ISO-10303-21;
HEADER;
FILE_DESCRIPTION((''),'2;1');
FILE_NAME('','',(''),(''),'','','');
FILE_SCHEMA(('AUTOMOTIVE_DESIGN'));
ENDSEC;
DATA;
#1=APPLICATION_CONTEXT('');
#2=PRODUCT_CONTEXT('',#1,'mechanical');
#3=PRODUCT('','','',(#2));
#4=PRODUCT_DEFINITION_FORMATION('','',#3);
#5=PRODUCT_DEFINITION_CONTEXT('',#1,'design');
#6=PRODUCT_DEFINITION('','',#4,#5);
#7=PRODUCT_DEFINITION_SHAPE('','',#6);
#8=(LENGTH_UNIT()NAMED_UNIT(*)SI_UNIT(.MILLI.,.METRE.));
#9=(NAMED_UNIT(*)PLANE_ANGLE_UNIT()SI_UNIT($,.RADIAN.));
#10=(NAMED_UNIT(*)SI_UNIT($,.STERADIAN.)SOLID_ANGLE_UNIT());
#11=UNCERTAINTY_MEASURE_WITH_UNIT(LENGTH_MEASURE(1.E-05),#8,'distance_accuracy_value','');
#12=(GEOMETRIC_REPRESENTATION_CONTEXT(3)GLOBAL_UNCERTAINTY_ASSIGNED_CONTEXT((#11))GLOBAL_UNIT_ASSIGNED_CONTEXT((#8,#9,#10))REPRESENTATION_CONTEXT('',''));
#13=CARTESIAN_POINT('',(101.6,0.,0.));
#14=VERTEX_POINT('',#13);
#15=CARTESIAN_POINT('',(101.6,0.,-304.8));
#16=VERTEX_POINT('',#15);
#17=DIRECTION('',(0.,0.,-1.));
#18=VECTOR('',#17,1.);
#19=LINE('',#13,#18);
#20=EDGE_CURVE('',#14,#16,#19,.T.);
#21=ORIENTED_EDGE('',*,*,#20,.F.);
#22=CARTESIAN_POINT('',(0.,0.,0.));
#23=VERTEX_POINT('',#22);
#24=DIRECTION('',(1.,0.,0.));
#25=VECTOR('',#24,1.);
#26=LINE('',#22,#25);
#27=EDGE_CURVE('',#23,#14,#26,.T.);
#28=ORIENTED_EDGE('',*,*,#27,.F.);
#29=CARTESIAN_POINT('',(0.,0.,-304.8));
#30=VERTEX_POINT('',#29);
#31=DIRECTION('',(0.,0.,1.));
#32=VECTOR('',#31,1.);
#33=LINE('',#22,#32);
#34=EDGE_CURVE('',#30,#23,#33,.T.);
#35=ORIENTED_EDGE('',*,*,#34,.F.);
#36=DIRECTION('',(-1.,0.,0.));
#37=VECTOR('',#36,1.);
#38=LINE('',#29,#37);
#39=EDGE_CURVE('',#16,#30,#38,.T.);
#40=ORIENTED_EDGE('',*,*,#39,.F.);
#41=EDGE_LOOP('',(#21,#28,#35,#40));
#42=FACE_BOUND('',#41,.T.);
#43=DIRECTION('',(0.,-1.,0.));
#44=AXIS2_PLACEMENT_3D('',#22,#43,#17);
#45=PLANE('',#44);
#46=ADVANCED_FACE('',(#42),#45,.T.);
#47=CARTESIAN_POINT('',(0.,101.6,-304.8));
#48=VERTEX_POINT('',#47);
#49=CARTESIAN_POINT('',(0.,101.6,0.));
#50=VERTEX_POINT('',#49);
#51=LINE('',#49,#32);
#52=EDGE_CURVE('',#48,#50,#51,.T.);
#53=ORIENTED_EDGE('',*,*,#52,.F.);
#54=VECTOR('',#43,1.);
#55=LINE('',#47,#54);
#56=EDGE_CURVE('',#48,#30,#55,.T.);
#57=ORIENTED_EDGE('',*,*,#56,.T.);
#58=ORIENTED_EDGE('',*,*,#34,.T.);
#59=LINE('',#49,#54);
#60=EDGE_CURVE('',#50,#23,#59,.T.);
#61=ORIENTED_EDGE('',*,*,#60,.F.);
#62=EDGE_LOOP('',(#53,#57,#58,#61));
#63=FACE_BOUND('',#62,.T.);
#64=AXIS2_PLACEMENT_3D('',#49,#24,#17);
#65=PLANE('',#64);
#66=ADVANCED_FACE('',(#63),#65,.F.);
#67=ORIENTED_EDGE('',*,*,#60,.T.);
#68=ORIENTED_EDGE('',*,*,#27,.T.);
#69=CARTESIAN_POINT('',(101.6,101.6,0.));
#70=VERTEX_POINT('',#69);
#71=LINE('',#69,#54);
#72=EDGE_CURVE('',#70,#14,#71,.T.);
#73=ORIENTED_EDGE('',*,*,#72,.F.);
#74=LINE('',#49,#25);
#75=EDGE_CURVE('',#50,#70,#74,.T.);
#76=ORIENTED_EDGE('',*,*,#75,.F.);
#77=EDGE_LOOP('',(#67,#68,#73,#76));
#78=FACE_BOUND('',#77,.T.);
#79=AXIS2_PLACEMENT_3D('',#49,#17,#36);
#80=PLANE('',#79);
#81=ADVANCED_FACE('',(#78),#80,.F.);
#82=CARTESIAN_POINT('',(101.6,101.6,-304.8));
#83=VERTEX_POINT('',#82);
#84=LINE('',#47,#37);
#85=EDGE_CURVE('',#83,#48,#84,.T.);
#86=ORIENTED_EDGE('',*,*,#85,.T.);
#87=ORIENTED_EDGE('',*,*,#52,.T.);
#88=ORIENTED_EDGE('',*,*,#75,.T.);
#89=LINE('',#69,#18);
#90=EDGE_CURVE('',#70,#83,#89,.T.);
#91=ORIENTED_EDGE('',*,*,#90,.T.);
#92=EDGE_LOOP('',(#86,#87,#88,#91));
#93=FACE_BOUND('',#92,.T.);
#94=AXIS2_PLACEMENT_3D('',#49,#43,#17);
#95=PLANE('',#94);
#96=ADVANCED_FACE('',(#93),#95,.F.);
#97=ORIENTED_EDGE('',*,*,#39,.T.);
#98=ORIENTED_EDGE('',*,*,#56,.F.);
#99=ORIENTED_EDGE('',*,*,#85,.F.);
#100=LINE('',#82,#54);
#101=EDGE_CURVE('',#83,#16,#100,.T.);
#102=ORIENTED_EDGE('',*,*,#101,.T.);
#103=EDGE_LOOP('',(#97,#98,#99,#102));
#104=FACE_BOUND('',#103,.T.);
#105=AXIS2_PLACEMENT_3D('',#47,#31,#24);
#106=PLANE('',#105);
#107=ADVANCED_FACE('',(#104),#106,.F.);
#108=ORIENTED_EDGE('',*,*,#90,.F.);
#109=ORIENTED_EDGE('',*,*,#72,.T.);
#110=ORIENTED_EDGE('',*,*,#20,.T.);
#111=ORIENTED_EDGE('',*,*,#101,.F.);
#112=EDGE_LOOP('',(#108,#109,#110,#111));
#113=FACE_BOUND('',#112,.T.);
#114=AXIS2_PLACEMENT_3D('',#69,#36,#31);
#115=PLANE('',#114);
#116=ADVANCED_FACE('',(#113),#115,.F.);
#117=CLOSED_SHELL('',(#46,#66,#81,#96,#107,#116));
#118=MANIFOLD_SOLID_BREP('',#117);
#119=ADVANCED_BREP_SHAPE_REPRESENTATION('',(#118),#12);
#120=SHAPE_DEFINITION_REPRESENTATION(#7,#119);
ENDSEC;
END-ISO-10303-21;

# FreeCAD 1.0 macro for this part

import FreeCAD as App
import Part
import Sketcher

V = App.Vector
Q = App.Units.Quantity


def add_polygon(sketch, points):
    """Adds a closed chain of lines whose ends are joined by coincident constraints."""
    first, n = sketch.GeometryCount, len(points)
    for a, b in zip(points, points[1:] + points[:1]):
        sketch.addGeometry(Part.LineSegment(App.Vector(*a, 0), App.Vector(*b, 0)), False)
    for i in range(n):
        sketch.addConstraint(Sketcher.Constraint("Coincident", first + i, 2, first + (i + 1) % n, 1))

doc = App.newDocument("Part")
body = doc.addObject("PartDesign::Body", "Body")

# Sketch on XZ plane
sketch1 = body.newObject("Sketcher::SketchObject", "Sketch")
sketch1.AttachmentSupport = (doc.getObject("XZ_Plane"), [""])
sketch1.MapMode = "FlatFace"
add_polygon(sketch1, [(0, -304.8), (0, 0), (101.6, 0), (101.6, -304.8)])  # lines 0-3
sketch1.addConstraint([
    Sketcher.Constraint("Vertical", 0),
    Sketcher.Constraint("Horizontal", 1),
    Sketcher.Constraint("Vertical", 2),
    Sketcher.Constraint("Horizontal", 3),
    Sketcher.Constraint("Coincident", 0, 2, -1, 1),
    Sketcher.Constraint("DistanceX", 1, 1, 1, 2, Q("4 in")),
    Sketcher.Constraint("DistanceY", 0, 1, 0, 2, Q("12 in")),
])
pad1 = body.newObject("PartDesign::Pad", "Pad")
pad1.Profile = sketch1
pad1.Length = Q("4 in")
pad1.Reversed = True

doc.recompute()
